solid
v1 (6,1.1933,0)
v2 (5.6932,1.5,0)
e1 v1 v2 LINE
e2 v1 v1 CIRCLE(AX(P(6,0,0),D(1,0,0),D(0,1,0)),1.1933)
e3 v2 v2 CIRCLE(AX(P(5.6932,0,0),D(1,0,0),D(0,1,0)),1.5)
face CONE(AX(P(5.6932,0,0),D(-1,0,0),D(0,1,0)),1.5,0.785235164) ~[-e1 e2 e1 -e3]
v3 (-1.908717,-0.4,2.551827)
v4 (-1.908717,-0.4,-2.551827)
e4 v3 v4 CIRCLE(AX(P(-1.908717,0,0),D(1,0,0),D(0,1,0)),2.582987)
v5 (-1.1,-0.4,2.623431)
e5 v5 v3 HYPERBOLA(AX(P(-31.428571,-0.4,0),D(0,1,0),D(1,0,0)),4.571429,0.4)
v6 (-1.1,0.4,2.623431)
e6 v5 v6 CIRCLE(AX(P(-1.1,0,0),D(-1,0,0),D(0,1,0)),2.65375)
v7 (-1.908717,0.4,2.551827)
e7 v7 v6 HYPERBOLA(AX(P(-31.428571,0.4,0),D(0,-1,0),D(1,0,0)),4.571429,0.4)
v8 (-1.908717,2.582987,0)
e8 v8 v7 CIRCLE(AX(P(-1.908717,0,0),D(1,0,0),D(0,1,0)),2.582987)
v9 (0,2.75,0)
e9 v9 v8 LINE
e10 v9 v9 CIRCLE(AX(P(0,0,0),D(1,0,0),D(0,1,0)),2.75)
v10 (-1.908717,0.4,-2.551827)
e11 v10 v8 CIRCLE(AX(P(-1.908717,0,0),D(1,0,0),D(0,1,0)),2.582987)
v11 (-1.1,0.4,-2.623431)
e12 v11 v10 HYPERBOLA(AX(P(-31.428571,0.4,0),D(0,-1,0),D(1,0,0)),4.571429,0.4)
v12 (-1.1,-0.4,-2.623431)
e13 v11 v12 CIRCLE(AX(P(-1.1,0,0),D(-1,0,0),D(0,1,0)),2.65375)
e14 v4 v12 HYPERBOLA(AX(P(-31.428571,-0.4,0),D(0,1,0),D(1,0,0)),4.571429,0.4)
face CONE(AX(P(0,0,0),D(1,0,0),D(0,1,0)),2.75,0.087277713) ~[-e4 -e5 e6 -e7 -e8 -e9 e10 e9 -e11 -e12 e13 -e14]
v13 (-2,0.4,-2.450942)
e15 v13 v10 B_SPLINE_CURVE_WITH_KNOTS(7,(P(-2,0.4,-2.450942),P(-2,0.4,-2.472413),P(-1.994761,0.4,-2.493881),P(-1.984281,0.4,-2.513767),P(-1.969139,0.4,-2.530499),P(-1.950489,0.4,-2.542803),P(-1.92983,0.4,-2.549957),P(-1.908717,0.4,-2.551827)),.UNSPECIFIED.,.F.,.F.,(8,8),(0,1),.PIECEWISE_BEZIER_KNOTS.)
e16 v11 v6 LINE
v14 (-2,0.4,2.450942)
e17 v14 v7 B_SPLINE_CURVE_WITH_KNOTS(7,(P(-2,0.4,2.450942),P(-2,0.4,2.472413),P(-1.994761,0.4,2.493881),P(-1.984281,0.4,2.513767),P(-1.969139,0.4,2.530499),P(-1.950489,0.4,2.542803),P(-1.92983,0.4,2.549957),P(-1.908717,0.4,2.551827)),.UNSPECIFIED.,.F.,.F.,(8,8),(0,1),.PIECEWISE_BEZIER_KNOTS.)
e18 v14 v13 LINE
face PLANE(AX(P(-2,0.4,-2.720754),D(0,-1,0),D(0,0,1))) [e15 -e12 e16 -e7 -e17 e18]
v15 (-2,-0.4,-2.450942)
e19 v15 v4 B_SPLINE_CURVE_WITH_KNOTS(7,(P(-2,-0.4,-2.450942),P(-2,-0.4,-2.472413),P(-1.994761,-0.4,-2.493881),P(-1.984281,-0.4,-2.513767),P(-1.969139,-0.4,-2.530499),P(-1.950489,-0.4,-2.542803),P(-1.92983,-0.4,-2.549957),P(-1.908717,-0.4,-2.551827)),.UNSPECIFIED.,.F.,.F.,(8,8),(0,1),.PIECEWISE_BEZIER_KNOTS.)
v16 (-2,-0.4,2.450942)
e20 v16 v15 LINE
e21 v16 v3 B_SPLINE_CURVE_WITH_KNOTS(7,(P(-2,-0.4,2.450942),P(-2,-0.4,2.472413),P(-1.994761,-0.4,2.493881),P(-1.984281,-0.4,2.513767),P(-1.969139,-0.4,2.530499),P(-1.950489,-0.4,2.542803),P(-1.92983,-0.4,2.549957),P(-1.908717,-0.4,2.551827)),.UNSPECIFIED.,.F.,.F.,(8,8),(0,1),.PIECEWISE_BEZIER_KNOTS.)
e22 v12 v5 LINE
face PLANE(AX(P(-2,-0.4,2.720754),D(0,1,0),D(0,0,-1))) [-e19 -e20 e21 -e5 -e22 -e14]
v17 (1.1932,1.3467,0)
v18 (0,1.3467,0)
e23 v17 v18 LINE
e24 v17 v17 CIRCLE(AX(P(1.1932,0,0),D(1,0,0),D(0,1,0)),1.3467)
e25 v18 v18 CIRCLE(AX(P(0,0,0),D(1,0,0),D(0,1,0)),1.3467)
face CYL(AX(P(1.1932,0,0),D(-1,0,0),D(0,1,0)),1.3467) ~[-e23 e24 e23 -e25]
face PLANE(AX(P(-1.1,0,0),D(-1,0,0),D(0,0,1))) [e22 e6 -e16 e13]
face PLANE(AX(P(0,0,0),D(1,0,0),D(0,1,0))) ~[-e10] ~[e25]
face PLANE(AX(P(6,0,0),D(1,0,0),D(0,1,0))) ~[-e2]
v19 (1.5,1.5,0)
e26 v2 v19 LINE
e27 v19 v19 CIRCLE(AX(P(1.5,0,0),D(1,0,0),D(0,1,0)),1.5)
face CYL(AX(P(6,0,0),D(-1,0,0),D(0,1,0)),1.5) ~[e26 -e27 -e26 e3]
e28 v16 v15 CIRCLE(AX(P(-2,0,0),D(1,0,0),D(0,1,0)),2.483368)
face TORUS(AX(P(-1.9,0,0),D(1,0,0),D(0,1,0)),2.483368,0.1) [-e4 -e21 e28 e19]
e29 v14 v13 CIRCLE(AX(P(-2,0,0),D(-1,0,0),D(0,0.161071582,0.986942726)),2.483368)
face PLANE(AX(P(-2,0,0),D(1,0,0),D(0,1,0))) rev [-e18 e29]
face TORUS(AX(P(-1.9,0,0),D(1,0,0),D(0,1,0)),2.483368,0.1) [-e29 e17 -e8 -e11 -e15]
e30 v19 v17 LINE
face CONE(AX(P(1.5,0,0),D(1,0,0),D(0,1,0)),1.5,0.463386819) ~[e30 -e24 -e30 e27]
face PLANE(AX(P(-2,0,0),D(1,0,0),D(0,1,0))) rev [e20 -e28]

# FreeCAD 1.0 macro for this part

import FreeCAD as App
import Part
import Sketcher
Q = App.Units.Quantity


def edges_at(feature, points):
    """Names of the edges that pass closest to the given points."""
    edges = feature.Shape.Edges
    near = lambda p: min(range(len(edges)), key=lambda i: edges[i].distToShape(Part.Vertex(*p))[0])
    return sorted({f"Edge{near(p) + 1}" for p in points})

doc = App.newDocument("Part")
body = doc.addObject("PartDesign::Body", "Body")

sketch1 = doc.addObject("Sketcher::SketchObject", "Sketch")
body.addObject(sketch1)
sketch1.AttachmentSupport = (doc.XY_Plane, [""])
sketch1.MapMode = "FlatFace"
sketch1.addGeometry([
    Part.LineSegment(App.Vector(-2, 2.575, 0), App.Vector(-2, 0, 0)),
    Part.LineSegment(App.Vector(-2, 0, 0), App.Vector(6, 0, 0)),
    Part.LineSegment(App.Vector(6, 0, 0), App.Vector(6, 1.5, 0)),
    Part.LineSegment(App.Vector(6, 1.5, 0), App.Vector(1.5, 1.5, 0)),
    Part.LineSegment(App.Vector(1.5, 1.5, 0), App.Vector(1.1932, 1.3467, 0)),
    Part.LineSegment(App.Vector(1.1932, 1.3467, 0), App.Vector(0, 1.3467, 0)),
    Part.LineSegment(App.Vector(0, 1.3467, 0), App.Vector(0, 2.75, 0)),
    Part.LineSegment(App.Vector(0, 2.75, 0), App.Vector(-2, 2.575, 0)),
], False)
sketch1.addConstraint([
    Sketcher.Constraint("Coincident", 0, 2, 1, 1),
    Sketcher.Constraint("Coincident", 1, 2, 2, 1),
    Sketcher.Constraint("Coincident", 2, 2, 3, 1),
    Sketcher.Constraint("Coincident", 3, 2, 4, 1),
    Sketcher.Constraint("Coincident", 4, 2, 5, 1),
    Sketcher.Constraint("Coincident", 5, 2, 6, 1),
    Sketcher.Constraint("Coincident", 6, 2, 7, 1),
    Sketcher.Constraint("Coincident", 7, 2, 0, 1),
    Sketcher.Constraint("Vertical", 0),
    Sketcher.Constraint("Horizontal", 1),
    Sketcher.Constraint("Vertical", 2),
    Sketcher.Constraint("Horizontal", 3),
    Sketcher.Constraint("Horizontal", 5),
    Sketcher.Constraint("Vertical", 6),
    Sketcher.Constraint("PointOnObject", 0, 2, -1),
    Sketcher.Constraint("PointOnObject", 5, 2, -2),
    Sketcher.Constraint("DistanceX", 3, 2, 3, 1, 4.5),
    Sketcher.Constraint("DistanceX", 0, 2, -1, 1, 2.0),
    Sketcher.Constraint("DistanceX", -1, 1, 1, 2, 6.0),
    Sketcher.Constraint("Angle", 7, Q("-174.9994 deg")),
    Sketcher.Constraint("DistanceY", 2, 1, 2, 2, 1.5),
    Sketcher.Constraint("Angle", 4, Q("-153.45 deg")),
    Sketcher.Constraint("DistanceX", 4, 2, 3, 2, 0.3068),
    Sketcher.Constraint("DistanceY", 0, 2, 0, 1, 2.575),
])
revolution = doc.addObject("PartDesign::Revolution", "Revolution")
body.addObject(revolution)
revolution.Profile = sketch1
revolution.ReferenceAxis = (sketch1, ["H_Axis"])
revolution.Angle = 360
doc.recompute()

fillet = doc.addObject("PartDesign::Fillet", "Fillet")
body.addObject(fillet)
fillet.Base = (revolution, edges_at(revolution, [(-2, -2.575, 0)]))
fillet.Radius = 0.1

sketch2 = doc.addObject("Sketcher::SketchObject", "Sketch001")
body.addObject(sketch2)
sketch2.AttachmentSupport = (doc.YZ_Plane, [""])
sketch2.MapMode = "FlatFace"
sketch2.AttachmentOffset = App.Placement(App.Vector(0, 0, -2), App.Rotation())
sketch2.addGeometry([
    Part.LineSegment(App.Vector(-0.4, 2.75, 0), App.Vector(0.4, 2.75, 0)),
    Part.LineSegment(App.Vector(0.4, 2.75, 0), App.Vector(0.4, -2.75, 0)),
    Part.LineSegment(App.Vector(0.4, -2.75, 0), App.Vector(-0.4, -2.75, 0)),
    Part.LineSegment(App.Vector(-0.4, -2.75, 0), App.Vector(-0.4, 2.75, 0)),
], False)
sketch2.addConstraint([
    Sketcher.Constraint("Coincident", 0, 2, 1, 1),
    Sketcher.Constraint("Coincident", 1, 2, 2, 1),
    Sketcher.Constraint("Coincident", 2, 2, 3, 1),
    Sketcher.Constraint("Coincident", 3, 2, 0, 1),
    Sketcher.Constraint("Horizontal", 0),
    Sketcher.Constraint("Vertical", 1),
    Sketcher.Constraint("Horizontal", 2),
    Sketcher.Constraint("Vertical", 3),
    Sketcher.Constraint("Symmetric", 0, 2, 2, 2, -1, 1),
    Sketcher.Constraint("DistanceX", 0, 1, 0, 2, 0.8),
    Sketcher.Constraint("DistanceY", 1, 2, 1, 1, 5.5),
])
pocket1 = doc.addObject("PartDesign::Pocket", "Pocket")
body.addObject(pocket1)
pocket1.Profile = sketch2
pocket1.Length = 0.9
pocket1.Reversed = True
doc.recompute()

chamfer = doc.addObject("PartDesign::Chamfer", "Chamfer")
body.addObject(chamfer)
chamfer.Base = (pocket1, edges_at(pocket1, [(6, -1.5, 0)]))
chamfer.ChamferType = "Two distances"
chamfer.Size = 0.3067
chamfer.Size2 = 0.3068

doc.recompute()
